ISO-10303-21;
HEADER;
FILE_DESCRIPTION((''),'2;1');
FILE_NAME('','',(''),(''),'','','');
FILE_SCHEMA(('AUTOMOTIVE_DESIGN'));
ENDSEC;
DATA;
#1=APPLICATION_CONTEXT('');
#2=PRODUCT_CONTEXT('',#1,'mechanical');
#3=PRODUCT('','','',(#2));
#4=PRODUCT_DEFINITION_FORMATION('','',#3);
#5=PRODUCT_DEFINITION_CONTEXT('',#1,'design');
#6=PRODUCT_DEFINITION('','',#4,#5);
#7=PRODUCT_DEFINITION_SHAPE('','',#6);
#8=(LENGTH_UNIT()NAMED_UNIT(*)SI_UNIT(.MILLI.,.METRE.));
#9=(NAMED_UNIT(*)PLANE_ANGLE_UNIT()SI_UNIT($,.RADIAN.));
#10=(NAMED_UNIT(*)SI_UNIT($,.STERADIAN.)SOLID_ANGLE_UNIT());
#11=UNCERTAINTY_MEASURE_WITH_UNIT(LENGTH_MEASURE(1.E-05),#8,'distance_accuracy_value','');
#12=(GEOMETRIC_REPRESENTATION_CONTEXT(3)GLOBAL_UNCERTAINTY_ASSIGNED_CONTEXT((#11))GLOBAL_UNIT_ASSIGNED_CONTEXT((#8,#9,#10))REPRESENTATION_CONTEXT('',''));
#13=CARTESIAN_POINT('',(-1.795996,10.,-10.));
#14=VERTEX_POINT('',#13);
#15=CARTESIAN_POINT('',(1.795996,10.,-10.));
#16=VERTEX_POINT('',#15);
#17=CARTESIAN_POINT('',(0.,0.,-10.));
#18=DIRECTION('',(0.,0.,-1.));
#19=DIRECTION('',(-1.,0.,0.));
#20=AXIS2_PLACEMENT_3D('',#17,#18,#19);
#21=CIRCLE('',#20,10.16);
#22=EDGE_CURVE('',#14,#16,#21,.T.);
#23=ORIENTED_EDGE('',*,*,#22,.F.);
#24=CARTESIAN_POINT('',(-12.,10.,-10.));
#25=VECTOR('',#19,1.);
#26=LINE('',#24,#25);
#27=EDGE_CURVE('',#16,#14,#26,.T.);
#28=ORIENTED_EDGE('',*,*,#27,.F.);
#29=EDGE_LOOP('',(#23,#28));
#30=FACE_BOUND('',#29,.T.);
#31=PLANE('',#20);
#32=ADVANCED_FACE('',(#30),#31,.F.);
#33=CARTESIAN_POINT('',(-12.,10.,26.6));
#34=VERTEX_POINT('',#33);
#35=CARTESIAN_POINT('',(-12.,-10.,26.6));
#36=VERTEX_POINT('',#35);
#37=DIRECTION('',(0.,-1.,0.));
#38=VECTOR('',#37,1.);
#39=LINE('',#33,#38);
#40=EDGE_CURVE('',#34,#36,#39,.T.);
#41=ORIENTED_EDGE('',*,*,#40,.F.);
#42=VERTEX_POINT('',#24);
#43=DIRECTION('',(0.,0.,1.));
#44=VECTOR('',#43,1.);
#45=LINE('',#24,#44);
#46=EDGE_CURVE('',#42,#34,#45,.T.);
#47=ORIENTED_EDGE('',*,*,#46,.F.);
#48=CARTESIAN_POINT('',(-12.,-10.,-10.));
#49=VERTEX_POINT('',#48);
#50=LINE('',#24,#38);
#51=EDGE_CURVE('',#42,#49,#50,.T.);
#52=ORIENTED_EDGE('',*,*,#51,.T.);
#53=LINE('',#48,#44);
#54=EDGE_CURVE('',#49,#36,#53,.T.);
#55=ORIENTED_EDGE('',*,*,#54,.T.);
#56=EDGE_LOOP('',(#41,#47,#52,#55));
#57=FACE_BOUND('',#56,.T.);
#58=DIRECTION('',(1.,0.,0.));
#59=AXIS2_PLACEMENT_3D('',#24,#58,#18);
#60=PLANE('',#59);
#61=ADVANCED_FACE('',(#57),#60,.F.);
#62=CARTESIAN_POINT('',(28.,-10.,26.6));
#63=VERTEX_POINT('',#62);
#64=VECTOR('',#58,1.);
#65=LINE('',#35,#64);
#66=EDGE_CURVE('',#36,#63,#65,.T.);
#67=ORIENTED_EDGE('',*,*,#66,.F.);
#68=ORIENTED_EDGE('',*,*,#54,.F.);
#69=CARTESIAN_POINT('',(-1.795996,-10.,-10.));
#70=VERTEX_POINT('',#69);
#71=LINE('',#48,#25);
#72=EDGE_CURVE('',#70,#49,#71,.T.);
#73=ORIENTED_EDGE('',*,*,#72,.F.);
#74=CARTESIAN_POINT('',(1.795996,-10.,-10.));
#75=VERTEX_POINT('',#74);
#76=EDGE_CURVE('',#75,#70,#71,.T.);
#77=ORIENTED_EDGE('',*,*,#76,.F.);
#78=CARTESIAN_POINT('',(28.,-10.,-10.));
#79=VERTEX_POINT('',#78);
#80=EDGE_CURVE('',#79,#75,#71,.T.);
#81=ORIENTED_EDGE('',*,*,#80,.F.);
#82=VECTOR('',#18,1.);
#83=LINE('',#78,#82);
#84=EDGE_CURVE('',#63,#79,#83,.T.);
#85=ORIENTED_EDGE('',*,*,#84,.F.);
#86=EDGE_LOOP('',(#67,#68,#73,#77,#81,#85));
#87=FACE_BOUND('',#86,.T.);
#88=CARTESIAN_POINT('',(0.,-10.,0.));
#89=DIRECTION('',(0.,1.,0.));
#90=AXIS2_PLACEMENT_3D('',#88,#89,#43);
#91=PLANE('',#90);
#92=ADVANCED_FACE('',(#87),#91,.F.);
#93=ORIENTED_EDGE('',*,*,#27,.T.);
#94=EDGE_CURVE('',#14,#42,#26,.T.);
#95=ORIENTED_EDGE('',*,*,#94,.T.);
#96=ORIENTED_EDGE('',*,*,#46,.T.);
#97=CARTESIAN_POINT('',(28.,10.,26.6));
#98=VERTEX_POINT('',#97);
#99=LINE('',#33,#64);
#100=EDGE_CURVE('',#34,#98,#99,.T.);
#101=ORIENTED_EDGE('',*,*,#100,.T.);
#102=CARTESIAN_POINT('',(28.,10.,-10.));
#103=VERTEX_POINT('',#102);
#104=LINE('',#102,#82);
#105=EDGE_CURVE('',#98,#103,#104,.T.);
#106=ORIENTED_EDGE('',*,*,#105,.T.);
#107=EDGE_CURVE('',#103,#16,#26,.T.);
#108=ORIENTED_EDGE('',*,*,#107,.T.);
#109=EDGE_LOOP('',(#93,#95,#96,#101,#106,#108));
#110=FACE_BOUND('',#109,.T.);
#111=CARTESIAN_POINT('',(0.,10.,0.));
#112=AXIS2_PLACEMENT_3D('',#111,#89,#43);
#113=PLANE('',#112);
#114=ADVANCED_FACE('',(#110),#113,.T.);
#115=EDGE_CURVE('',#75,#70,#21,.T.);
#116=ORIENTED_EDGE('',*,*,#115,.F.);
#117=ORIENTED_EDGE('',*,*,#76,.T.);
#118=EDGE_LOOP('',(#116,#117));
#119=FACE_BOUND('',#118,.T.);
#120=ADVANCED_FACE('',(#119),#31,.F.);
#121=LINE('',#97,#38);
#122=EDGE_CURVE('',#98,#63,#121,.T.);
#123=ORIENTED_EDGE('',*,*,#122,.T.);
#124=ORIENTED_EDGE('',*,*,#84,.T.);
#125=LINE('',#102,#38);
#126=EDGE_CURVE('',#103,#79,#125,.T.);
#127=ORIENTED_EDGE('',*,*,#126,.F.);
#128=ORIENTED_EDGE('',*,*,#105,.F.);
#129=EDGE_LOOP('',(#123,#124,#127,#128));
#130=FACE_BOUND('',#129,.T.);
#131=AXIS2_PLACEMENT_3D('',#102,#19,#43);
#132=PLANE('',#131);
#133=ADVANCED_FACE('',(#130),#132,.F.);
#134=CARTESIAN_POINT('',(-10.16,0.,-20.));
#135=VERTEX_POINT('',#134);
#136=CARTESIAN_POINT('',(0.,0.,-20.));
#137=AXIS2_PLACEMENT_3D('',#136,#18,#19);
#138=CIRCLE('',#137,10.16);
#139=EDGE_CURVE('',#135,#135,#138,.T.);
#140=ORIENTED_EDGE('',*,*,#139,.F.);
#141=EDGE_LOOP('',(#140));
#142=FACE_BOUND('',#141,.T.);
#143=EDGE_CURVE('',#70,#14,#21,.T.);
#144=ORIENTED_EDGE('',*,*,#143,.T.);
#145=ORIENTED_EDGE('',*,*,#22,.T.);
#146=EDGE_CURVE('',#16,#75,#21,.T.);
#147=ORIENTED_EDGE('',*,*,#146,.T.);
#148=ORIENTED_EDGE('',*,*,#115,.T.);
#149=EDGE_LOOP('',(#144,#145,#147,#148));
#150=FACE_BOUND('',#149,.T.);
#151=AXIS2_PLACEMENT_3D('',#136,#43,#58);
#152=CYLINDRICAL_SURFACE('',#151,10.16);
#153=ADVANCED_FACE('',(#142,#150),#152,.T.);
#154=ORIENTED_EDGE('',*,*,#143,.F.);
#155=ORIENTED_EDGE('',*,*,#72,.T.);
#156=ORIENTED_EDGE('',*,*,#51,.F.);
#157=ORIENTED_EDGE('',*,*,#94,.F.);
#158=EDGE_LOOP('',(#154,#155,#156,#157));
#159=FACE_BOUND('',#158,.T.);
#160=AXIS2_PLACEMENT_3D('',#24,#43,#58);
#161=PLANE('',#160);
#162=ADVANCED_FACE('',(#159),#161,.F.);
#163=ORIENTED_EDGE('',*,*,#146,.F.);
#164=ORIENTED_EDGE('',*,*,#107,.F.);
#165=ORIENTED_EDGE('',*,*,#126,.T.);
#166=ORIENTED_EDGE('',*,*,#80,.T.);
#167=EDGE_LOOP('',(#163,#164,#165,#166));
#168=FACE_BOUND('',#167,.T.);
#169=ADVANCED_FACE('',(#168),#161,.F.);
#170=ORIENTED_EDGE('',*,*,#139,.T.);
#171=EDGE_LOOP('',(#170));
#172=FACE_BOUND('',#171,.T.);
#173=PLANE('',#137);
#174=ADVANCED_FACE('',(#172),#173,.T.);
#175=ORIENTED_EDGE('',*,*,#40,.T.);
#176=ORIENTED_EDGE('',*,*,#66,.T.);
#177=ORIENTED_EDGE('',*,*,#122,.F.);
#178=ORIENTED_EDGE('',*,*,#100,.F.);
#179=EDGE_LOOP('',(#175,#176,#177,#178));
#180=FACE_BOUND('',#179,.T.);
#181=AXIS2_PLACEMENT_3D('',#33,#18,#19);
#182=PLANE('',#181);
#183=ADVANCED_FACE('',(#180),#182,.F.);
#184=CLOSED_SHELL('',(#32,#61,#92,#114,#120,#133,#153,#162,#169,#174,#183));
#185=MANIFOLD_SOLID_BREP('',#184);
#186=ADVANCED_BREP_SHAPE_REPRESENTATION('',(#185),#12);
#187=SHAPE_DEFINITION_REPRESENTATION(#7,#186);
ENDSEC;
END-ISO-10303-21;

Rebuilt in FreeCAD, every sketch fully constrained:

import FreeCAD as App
import Part
import Sketcher
Q = App.Units.Quantity

doc = App.newDocument("Part")
body = doc.addObject("PartDesign::Body", "Body")

sketch1 = doc.addObject("Sketcher::SketchObject", "Sketch")
body.addObject(sketch1)
sketch1.AttachmentSupport = (doc.XZ_Plane, [""])
sketch1.MapMode = "FlatFace"
sketch1.addGeometry([
    Part.LineSegment(App.Vector(-12, -10, 0), App.Vector(-12, 27, 0)),
    Part.LineSegment(App.Vector(-12, 27, 0), App.Vector(28, 27, 0)),
    Part.LineSegment(App.Vector(28, 27, 0), App.Vector(28, -10, 0)),
    Part.LineSegment(App.Vector(28, -10, 0), App.Vector(-12, -10, 0)),
], False)
sketch1.addConstraint([
    Sketcher.Constraint("Coincident", 0, 2, 1, 1),
    Sketcher.Constraint("Coincident", 1, 2, 2, 1),
    Sketcher.Constraint("Coincident", 2, 2, 3, 1),
    Sketcher.Constraint("Coincident", 3, 2, 0, 1),
    Sketcher.Constraint("Vertical", 0),
    Sketcher.Constraint("Horizontal", 1),
    Sketcher.Constraint("Vertical", 2),
    Sketcher.Constraint("Horizontal", 3),
    Sketcher.Constraint("DistanceX", 1, 1, 1, 2, Q("40 mm")),
    Sketcher.Constraint("DistanceY", 0, 1, 0, 2, Q("36.6 mm")),
    Sketcher.Constraint("DistanceX", 0, 2, -1, 1, Q("12 mm")),
    Sketcher.Constraint("DistanceY", 2, 2, -1, 1, Q("10 mm")),
])
pad1 = doc.addObject("PartDesign::Pad", "Pad")
body.addObject(pad1)
pad1.Profile = sketch1
pad1.Length = 20
pad1.Midplane = True

sketch2 = doc.addObject("Sketcher::SketchObject", "Sketch001")
body.addObject(sketch2)
sketch2.AttachmentSupport = (doc.XY_Plane, [""])
sketch2.MapMode = "FlatFace"
sketch2.AttachmentOffset = App.Placement(App.Vector(0, 0, -10), App.Rotation())
sketch2.addGeometry(Part.Circle(App.Vector(0, 0, 0), App.Vector(0, 0, 1), 10), False)
sketch2.addConstraint([
    Sketcher.Constraint("Coincident", 0, 3, -1, 1),
    Sketcher.Constraint("Diameter", 0, Q("20.32 mm")),
])
pad2 = doc.addObject("PartDesign::Pad", "Pad001")
body.addObject(pad2)
pad2.Profile = sketch2
pad2.Length = 10
pad2.Reversed = True

doc.recompute()
